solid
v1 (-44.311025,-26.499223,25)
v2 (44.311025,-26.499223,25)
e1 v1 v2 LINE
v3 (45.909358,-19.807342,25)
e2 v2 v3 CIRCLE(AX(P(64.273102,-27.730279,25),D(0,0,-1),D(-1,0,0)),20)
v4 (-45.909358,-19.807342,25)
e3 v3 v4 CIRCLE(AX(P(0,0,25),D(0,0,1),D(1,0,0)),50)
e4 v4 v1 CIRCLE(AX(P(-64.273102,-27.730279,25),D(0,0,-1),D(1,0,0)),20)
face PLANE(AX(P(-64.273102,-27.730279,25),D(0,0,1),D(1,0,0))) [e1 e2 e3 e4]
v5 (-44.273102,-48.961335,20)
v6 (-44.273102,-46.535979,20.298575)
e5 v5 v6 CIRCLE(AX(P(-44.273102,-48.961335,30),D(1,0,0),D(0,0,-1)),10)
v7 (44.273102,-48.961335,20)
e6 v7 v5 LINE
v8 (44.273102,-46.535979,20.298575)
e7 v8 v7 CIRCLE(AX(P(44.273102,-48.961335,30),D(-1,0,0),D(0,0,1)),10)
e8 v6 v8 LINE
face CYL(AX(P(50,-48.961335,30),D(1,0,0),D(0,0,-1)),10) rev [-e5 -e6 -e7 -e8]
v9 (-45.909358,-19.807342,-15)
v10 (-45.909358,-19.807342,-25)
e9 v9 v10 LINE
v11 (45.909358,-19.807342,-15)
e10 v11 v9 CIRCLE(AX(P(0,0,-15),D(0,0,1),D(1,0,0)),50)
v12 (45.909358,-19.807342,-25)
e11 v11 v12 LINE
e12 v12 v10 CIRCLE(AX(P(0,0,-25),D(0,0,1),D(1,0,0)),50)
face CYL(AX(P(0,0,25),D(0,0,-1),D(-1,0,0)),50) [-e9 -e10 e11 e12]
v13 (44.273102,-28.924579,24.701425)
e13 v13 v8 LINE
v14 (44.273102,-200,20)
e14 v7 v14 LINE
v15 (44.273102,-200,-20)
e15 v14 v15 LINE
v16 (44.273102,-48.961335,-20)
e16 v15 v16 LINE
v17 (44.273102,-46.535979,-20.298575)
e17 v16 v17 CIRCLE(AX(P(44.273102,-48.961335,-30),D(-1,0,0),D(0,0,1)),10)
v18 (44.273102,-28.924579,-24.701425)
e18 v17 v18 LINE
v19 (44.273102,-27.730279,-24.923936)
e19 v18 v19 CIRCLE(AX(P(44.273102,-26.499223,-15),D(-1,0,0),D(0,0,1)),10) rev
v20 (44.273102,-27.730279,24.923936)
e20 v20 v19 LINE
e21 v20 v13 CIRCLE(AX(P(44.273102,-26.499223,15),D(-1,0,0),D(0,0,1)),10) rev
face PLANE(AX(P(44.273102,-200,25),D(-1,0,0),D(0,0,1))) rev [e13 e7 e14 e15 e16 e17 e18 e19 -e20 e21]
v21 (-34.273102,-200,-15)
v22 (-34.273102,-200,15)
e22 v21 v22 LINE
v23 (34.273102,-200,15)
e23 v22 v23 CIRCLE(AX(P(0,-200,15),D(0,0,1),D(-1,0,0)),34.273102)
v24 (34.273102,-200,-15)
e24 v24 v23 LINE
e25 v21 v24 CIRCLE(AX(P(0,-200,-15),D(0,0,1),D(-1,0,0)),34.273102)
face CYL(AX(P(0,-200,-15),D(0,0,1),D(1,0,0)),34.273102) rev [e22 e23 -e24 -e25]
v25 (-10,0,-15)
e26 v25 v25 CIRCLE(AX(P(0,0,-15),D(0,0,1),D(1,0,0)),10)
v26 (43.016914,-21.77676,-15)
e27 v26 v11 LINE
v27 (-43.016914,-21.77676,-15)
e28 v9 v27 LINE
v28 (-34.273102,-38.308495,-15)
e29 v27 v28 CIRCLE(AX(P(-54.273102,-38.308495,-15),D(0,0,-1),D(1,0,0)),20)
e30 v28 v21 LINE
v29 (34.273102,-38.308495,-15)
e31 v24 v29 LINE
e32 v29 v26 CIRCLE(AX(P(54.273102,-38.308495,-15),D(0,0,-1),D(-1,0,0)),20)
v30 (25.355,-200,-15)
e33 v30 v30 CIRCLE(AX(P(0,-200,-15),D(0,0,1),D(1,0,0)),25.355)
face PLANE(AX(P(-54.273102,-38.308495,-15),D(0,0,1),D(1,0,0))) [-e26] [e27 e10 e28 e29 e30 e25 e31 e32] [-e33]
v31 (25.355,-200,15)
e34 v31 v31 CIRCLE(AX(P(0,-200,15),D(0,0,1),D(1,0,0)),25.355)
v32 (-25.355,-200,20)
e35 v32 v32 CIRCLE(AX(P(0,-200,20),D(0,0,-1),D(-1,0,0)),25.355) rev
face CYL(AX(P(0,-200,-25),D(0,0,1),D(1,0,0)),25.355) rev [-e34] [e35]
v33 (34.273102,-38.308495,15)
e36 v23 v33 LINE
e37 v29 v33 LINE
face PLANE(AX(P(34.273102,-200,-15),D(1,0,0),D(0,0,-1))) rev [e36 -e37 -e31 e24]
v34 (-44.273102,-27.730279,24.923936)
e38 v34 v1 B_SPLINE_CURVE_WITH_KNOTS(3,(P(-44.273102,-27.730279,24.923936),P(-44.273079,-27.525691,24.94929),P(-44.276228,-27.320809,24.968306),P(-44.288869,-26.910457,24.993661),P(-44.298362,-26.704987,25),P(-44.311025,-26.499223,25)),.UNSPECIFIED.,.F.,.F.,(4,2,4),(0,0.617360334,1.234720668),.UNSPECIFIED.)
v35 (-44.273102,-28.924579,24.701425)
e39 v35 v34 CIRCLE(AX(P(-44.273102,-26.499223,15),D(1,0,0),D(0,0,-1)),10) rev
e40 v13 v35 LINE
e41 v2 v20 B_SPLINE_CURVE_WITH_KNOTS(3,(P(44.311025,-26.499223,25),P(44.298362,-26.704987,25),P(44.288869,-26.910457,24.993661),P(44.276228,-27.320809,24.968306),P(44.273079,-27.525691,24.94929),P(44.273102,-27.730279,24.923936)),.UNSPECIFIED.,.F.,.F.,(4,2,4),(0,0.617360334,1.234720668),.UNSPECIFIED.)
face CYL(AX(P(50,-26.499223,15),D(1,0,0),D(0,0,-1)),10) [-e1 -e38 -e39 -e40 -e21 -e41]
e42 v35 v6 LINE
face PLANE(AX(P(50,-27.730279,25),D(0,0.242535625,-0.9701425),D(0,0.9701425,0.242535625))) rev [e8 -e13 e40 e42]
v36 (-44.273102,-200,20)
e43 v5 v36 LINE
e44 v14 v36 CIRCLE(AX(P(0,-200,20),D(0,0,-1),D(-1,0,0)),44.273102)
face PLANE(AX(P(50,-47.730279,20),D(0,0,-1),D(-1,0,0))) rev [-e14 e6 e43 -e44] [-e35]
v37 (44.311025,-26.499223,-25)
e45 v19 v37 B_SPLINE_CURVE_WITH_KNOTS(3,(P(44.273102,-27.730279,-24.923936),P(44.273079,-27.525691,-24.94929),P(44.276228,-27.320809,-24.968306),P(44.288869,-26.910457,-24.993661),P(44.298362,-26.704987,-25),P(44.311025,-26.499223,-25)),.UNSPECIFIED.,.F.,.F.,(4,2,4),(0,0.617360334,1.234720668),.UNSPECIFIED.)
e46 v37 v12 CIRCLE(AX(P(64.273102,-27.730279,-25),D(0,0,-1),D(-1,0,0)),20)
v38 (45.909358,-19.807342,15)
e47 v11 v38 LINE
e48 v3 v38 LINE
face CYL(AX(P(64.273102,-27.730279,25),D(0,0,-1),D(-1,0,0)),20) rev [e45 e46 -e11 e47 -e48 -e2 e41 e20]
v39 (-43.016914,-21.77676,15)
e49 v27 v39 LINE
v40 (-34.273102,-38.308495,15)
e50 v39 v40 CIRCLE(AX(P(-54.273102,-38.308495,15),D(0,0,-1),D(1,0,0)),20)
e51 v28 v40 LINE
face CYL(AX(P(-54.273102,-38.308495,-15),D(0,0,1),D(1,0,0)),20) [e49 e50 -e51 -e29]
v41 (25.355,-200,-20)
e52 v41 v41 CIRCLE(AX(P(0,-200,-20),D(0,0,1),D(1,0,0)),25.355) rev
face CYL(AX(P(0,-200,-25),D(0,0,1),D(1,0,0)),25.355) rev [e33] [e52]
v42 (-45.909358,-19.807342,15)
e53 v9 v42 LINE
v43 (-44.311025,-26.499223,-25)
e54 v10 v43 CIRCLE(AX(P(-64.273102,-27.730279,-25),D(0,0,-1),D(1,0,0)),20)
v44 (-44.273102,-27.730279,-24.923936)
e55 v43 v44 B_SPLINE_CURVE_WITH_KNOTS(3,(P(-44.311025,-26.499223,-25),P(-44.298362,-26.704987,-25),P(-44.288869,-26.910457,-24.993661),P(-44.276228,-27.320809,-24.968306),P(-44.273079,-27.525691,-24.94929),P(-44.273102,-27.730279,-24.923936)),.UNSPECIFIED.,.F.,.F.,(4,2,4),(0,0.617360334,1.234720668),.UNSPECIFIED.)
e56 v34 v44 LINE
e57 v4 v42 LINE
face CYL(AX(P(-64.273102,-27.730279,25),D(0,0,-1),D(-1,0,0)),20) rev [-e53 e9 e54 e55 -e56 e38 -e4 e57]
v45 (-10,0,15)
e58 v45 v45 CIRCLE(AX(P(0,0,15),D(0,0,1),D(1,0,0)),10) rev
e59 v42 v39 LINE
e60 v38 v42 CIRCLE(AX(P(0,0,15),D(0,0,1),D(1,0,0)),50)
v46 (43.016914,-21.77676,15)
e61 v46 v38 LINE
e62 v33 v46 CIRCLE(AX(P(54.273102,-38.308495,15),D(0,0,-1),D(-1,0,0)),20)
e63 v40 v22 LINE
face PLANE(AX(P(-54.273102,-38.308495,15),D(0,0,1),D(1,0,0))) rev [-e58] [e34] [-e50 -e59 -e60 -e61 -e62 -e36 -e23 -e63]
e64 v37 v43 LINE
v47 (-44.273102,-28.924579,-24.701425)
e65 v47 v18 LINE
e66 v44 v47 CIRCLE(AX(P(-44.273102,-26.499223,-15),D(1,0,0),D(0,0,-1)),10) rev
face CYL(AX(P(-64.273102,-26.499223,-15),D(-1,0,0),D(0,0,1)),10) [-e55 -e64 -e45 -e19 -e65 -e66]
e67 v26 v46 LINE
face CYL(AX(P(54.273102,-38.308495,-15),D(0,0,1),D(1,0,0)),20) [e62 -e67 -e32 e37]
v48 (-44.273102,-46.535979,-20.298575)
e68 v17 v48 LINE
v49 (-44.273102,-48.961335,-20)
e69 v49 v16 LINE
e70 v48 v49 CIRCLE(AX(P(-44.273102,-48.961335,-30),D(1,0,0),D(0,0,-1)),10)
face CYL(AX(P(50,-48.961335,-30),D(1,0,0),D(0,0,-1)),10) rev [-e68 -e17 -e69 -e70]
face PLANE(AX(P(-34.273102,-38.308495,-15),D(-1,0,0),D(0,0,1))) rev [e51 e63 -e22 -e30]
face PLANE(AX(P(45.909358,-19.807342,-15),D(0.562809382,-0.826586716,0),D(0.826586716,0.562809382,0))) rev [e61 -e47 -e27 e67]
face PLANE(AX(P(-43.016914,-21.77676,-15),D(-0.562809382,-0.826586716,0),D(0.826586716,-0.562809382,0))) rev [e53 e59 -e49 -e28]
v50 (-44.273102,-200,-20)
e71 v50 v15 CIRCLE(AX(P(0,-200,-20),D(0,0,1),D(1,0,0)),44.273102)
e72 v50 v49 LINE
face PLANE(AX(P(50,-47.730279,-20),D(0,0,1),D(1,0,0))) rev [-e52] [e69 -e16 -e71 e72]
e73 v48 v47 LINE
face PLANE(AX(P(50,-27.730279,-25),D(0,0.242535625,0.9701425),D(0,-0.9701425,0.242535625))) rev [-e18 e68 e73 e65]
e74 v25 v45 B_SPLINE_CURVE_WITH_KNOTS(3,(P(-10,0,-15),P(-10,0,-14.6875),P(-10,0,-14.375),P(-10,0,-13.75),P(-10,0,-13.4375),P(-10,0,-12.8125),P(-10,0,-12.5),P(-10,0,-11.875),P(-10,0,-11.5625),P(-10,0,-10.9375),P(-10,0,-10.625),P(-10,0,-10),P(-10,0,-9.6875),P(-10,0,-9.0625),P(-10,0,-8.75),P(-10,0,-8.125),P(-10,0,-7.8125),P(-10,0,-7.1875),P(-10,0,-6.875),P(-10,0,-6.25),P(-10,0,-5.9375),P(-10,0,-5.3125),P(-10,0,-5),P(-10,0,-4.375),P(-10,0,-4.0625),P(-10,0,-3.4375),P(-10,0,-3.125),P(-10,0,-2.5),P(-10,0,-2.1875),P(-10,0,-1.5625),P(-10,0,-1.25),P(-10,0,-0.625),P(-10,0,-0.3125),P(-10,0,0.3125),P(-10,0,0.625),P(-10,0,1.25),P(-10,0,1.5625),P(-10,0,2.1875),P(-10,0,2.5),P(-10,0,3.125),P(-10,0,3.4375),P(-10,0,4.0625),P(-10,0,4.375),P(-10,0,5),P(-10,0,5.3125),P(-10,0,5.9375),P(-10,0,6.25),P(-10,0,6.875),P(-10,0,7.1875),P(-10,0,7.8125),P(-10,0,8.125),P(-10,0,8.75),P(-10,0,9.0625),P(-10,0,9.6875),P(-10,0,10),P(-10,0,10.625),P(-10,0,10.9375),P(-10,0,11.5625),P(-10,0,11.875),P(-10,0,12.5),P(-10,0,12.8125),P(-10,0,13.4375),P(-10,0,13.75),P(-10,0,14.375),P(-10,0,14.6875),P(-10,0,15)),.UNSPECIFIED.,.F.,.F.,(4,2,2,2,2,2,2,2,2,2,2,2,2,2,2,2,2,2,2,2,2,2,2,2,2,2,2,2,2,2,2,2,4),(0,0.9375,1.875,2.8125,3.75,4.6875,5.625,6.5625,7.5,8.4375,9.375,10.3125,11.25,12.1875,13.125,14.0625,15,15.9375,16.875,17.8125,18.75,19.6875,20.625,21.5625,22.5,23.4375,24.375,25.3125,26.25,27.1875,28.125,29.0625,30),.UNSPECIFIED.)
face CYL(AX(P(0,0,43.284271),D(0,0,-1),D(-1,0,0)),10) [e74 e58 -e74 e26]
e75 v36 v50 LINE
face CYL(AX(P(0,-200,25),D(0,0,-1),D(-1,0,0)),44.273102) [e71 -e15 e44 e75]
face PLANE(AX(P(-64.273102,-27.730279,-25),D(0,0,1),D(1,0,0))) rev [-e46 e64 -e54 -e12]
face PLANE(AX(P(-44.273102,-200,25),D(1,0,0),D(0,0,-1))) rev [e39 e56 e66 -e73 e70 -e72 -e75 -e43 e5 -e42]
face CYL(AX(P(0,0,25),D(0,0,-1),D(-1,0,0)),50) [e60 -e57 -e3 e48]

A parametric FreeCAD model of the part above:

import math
import FreeCAD as App
import Part
import Sketcher
Q = App.Units.Quantity


def edges_at(feature, points):
    """Names of the edges that pass closest to the given points."""
    edges = feature.Shape.Edges
    near = lambda p: min(range(len(edges)), key=lambda i: edges[i].distToShape(Part.Vertex(*p))[0])
    return sorted({f"Edge{near(p) + 1}" for p in points})

doc = App.newDocument("Part")
params = doc.addObject("Spreadsheet::Sheet", "Params")
for row, (alias, value) in enumerate([
    ("sketch1_radius", "20 mm"),
    ("sketch1_radius2", "50 mm"),
    ("pad1_length", "50 mm"),
    ("sketch2_radius", "20 mm"),
    ("sketch2_radius2", "50 mm"),
    ("pocket1_length", "30 mm"),
    ("sketch3_diameter", "50.71 mm"),
    ("sketch4_diameter", "20 mm"),
    ("pad2_length", "30 mm"),
    ("sketch5_height", "5 mm"),
    ("fillet_radius", "10 mm"),
], start=1):
    params.set(f"A{row}", alias)
    params.set(f"B{row}", "=" + value)
    params.setAlias(f"B{row}", alias)

body = doc.addObject("PartDesign::Body", "Body")

# Sketch on XY plane
sketch1 = doc.addObject("Sketcher::SketchObject", "Sketch")
body.addObject(sketch1)
sketch1.AttachmentSupport = (doc.XY_Plane, [""])
sketch1.MapMode = "FlatFace"
sketch1.addGeometry(Part.LineSegment(App.Vector(44, -200, 0), App.Vector(44, -28, 0)), False)
sketch1.addGeometry(Part.ArcOfCircle(Part.Circle(App.Vector(64, -28, 0), App.Vector(0, 0, 1), 20), math.radians(157), math.radians(180)), False)
sketch1.addGeometry(Part.ArcOfCircle(Part.Circle(App.Vector(0, 0, 0), App.Vector(0, 0, 1), 50), math.radians(-23), math.radians(203)), False)
sketch1.addGeometry(Part.ArcOfCircle(Part.Circle(App.Vector(-64, -28, 0), App.Vector(0, 0, 1), 20), math.radians(0), math.radians(23)), False)
sketch1.addGeometry(Part.LineSegment(App.Vector(-44, -28, 0), App.Vector(-44, -200, 0)), False)
sketch1.addGeometry(Part.ArcOfCircle(Part.Circle(App.Vector(0, -200, 0), App.Vector(0, 0, 1), 44), math.radians(180), math.radians(360)), False)
sketch1.addConstraint(Sketcher.Constraint("Tangent", 0, 2, 1, 2))
sketch1.addConstraint(Sketcher.Constraint("Tangent", 1, 1, 2, 1))
sketch1.addConstraint(Sketcher.Constraint("Tangent", 2, 2, 3, 2))
sketch1.addConstraint(Sketcher.Constraint("Tangent", 3, 1, 4, 1))
sketch1.addConstraint(Sketcher.Constraint("Tangent", 4, 2, 5, 1))
sketch1.addConstraint(Sketcher.Constraint("Tangent", 5, 2, 0, 1))
sketch1.addConstraint(Sketcher.Constraint("Vertical", 0))
sketch1.addConstraint(Sketcher.Constraint("Vertical", 4))
sketch1.addConstraint(Sketcher.Constraint("Coincident", 2, 3, -1, 1))
sketch1.addConstraint(Sketcher.Constraint("Equal", 1, 3))
sketch1.addConstraint(Sketcher.Constraint("PointOnObject", 5, 3, -2))
sketch1.addConstraint(Sketcher.Constraint("Radius", 1, Q("20 mm")))
sketch1.addConstraint(Sketcher.Constraint("Radius", 2, Q("50 mm")))
sketch1.addConstraint(Sketcher.Constraint("DistanceY", 5, 3, -1, 1, Q("200 mm")))
sketch1.addConstraint(Sketcher.Constraint("Radius", 5, Q("44.273102 mm")))
sketch1.setExpression("Constraints[11]", "Params.sketch1_radius")
sketch1.setExpression("Constraints[12]", "Params.sketch1_radius2")
pad1 = doc.addObject("PartDesign::Pad", "Pad")
body.addObject(pad1)
pad1.Profile = sketch1
pad1.setExpression("Length", "Params.pad1_length")
pad1.Midplane = True

# Sketch on XY plane
sketch2 = doc.addObject("Sketcher::SketchObject", "Sketch001")
body.addObject(sketch2)
sketch2.AttachmentSupport = (doc.XY_Plane, [""])
sketch2.MapMode = "FlatFace"
sketch2.addGeometry(Part.LineSegment(App.Vector(34.3, -200, 0), App.Vector(34.3, -38.3, 0)), False)
sketch2.addGeometry(Part.ArcOfCircle(Part.Circle(App.Vector(54.3, -38.3, 0), App.Vector(0, 0, 1), 20), math.radians(124), math.radians(180)), False)
sketch2.addGeometry(Part.LineSegment(App.Vector(43, -21.8, 0), App.Vector(45.9, -19.8, 0)), False)
sketch2.addGeometry(Part.ArcOfCircle(Part.Circle(App.Vector(0, 0, 0), App.Vector(0, 0, 1), 50), math.radians(-23), math.radians(203)), False)
sketch2.addGeometry(Part.LineSegment(App.Vector(-45.9, -19.8, 0), App.Vector(-43, -21.8, 0)), False)
sketch2.addGeometry(Part.ArcOfCircle(Part.Circle(App.Vector(-54.3, -38.3, 0), App.Vector(0, 0, 1), 20), math.radians(0), math.radians(56)), False)
sketch2.addGeometry(Part.LineSegment(App.Vector(-34.3, -38.3, 0), App.Vector(-34.3, -200, 0)), False)
sketch2.addGeometry(Part.ArcOfCircle(Part.Circle(App.Vector(0, -200, 0), App.Vector(0, 0, 1), 34.3), math.radians(180), math.radians(360)), False)
sketch2.addConstraint(Sketcher.Constraint("Tangent", 0, 2, 1, 2))
sketch2.addConstraint(Sketcher.Constraint("Tangent", 1, 1, 2, 1))
sketch2.addConstraint(Sketcher.Constraint("Coincident", 2, 2, 3, 1))
sketch2.addConstraint(Sketcher.Constraint("Coincident", 3, 2, 4, 1))
sketch2.addConstraint(Sketcher.Constraint("Tangent", 4, 2, 5, 2))
sketch2.addConstraint(Sketcher.Constraint("Tangent", 5, 1, 6, 1))
sketch2.addConstraint(Sketcher.Constraint("Tangent", 6, 2, 7, 1))
sketch2.addConstraint(Sketcher.Constraint("Tangent", 7, 2, 0, 1))
sketch2.addConstraint(Sketcher.Constraint("Vertical", 0))
sketch2.addConstraint(Sketcher.Constraint("Vertical", 6))
sketch2.addConstraint(Sketcher.Constraint("Coincident", 3, 3, -1, 1))
sketch2.addConstraint(Sketcher.Constraint("Equal", 1, 5))
sketch2.addConstraint(Sketcher.Constraint("Symmetric", 1, 3, 5, 3, -2))
sketch2.addConstraint(Sketcher.Constraint("Horizontal", 2, 2, 3, 2))
sketch2.addConstraint(Sketcher.Constraint("Radius", 1, Q("20 mm")))
sketch2.addConstraint(Sketcher.Constraint("Radius", 3, Q("50 mm")))
sketch2.addConstraint(Sketcher.Constraint("DistanceY", 7, 3, -1, 1, Q("200 mm")))
sketch2.addConstraint(Sketcher.Constraint("Radius", 7, Q("34.273102 mm")))
sketch2.addConstraint(Sketcher.Constraint("DistanceY", 0, 1, 0, 2, Q("161.691505 mm")))
sketch2.addConstraint(Sketcher.Constraint("DistanceY", 1, 1, -1, 1, Q("21.77676 mm")))
sketch2.setExpression("Constraints[14]", "Params.sketch2_radius")
sketch2.setExpression("Constraints[15]", "Params.sketch2_radius2")
pocket1 = doc.addObject("PartDesign::Pocket", "Pocket")
body.addObject(pocket1)
pocket1.Profile = sketch2
pocket1.setExpression("Length", "Params.pocket1_length")
pocket1.Midplane = True

# Sketch on XY plane
sketch3 = doc.addObject("Sketcher::SketchObject", "Sketch002")
body.addObject(sketch3)
sketch3.AttachmentSupport = (doc.XY_Plane, [""])
sketch3.MapMode = "FlatFace"
sketch3.AttachmentOffset = App.Placement(App.Vector(0, 0, 25), App.Rotation())
sketch3.addGeometry(Part.Circle(App.Vector(0, -200, 0), App.Vector(0, 0, 1), 25), False)
sketch3.addConstraint(Sketcher.Constraint("PointOnObject", 0, 3, -2))
sketch3.addConstraint(Sketcher.Constraint("Diameter", 0, Q("50.71 mm")))
sketch3.addConstraint(Sketcher.Constraint("DistanceY", 0, 3, -1, 1, Q("200 mm")))
sketch3.setExpression("Constraints[1]", "Params.sketch3_diameter")
pocket2 = doc.addObject("PartDesign::Pocket", "Pocket001")
body.addObject(pocket2)
pocket2.Profile = sketch3
pocket2.Type = "ThroughAll"

# Sketch on XY plane
sketch4 = doc.addObject("Sketcher::SketchObject", "Sketch003")
body.addObject(sketch4)
sketch4.AttachmentSupport = (doc.XY_Plane, [""])
sketch4.MapMode = "FlatFace"
sketch4.AttachmentOffset = App.Placement(App.Vector(0, 0, -15), App.Rotation())
sketch4.addGeometry(Part.Circle(App.Vector(0, 0, 0), App.Vector(0, 0, 1), 10), False)
sketch4.addConstraint(Sketcher.Constraint("Coincident", 0, 3, -1, 1))
sketch4.addConstraint(Sketcher.Constraint("Diameter", 0, Q("20 mm")))
sketch4.setExpression("Constraints[1]", "Params.sketch4_diameter")
pad2 = doc.addObject("PartDesign::Pad", "Pad001")
body.addObject(pad2)
pad2.Profile = sketch4
pad2.setExpression("Length", "Params.pad2_length")

# Sketch on YZ plane
sketch5 = doc.addObject("Sketcher::SketchObject", "Sketch004")
body.addObject(sketch5)
sketch5.AttachmentSupport = (doc.YZ_Plane, [""])
sketch5.MapMode = "FlatFace"
sketch5.AttachmentOffset = App.Placement(App.Vector(0, 0, -44.273102), App.Rotation())
sketch5.addGeometry(Part.LineSegment(App.Vector(-48, -20, 0), App.Vector(-28, -25, 0)), False)
sketch5.addGeometry(Part.LineSegment(App.Vector(-28, -25, 0), App.Vector(-249, -25, 0)), False)
sketch5.addGeometry(Part.LineSegment(App.Vector(-249, -25, 0), App.Vector(-249, -20, 0)), False)
sketch5.addGeometry(Part.LineSegment(App.Vector(-249, -20, 0), App.Vector(-48, -20, 0)), False)
sketch5.addGeometry(Part.LineSegment(App.Vector(-249, 20, 0), App.Vector(-249, 25, 0)), False)
sketch5.addGeometry(Part.LineSegment(App.Vector(-249, 25, 0), App.Vector(-28, 25, 0)), False)
sketch5.addGeometry(Part.LineSegment(App.Vector(-28, 25, 0), App.Vector(-48, 20, 0)), False)
sketch5.addGeometry(Part.LineSegment(App.Vector(-48, 20, 0), App.Vector(-249, 20, 0)), False)
sketch5.addConstraint(Sketcher.Constraint("Coincident", 0, 2, 1, 1))
sketch5.addConstraint(Sketcher.Constraint("Coincident", 1, 2, 2, 1))
sketch5.addConstraint(Sketcher.Constraint("Coincident", 2, 2, 3, 1))
sketch5.addConstraint(Sketcher.Constraint("Coincident", 3, 2, 0, 1))
sketch5.addConstraint(Sketcher.Constraint("Coincident", 4, 2, 5, 1))
sketch5.addConstraint(Sketcher.Constraint("Coincident", 5, 2, 6, 1))
sketch5.addConstraint(Sketcher.Constraint("Coincident", 6, 2, 7, 1))
sketch5.addConstraint(Sketcher.Constraint("Coincident", 7, 2, 4, 1))
sketch5.addConstraint(Sketcher.Constraint("Horizontal", 1))
sketch5.addConstraint(Sketcher.Constraint("Vertical", 2))
sketch5.addConstraint(Sketcher.Constraint("Horizontal", 3))
sketch5.addConstraint(Sketcher.Constraint("Vertical", 4))
sketch5.addConstraint(Sketcher.Constraint("Horizontal", 5))
sketch5.addConstraint(Sketcher.Constraint("Horizontal", 7))
sketch5.addConstraint(Sketcher.Constraint("Symmetric", 1, 2, 4, 2, -1))
sketch5.addConstraint(Sketcher.Constraint("Symmetric", 3, 2, 6, 2, -1))
sketch5.addConstraint(Sketcher.Constraint("Vertical", 0, 2, 5, 2))
sketch5.addConstraint(Sketcher.Constraint("DistanceY", 2, 1, 2, 2, Q("5 mm")))
sketch5.addConstraint(Sketcher.Constraint("DistanceY", 0, 2, -1, 1, Q("25 mm")))
sketch5.addConstraint(Sketcher.Constraint("DistanceX", 3, 2, 0, 2, Q("20 mm")))
sketch5.addConstraint(Sketcher.Constraint("DistanceX", 1, 2, 1, 1, Q("221.12061 mm")))
sketch5.addConstraint(Sketcher.Constraint("DistanceX", 0, 2, -1, 1, Q("27.730279 mm")))
sketch5.setExpression("Constraints[17]", "Params.sketch5_height")
pocket3 = doc.addObject("PartDesign::Pocket", "Pocket002")
body.addObject(pocket3)
pocket3.Profile = sketch5
pocket3.Type = "ThroughAll"
pocket3.Reversed = True
doc.recompute()

fillet = doc.addObject("PartDesign::Fillet", "Fillet")
body.addObject(fillet)
fillet.Base = (pocket3, edges_at(pocket3, [
    (0, -27.73, -25),
    (0, -47.73, -20),
    (0, -47.73, 20),
    (0, -27.73, 25),
]))
fillet.setExpression("Radius", "Params.fillet_radius")

doc.recompute()
